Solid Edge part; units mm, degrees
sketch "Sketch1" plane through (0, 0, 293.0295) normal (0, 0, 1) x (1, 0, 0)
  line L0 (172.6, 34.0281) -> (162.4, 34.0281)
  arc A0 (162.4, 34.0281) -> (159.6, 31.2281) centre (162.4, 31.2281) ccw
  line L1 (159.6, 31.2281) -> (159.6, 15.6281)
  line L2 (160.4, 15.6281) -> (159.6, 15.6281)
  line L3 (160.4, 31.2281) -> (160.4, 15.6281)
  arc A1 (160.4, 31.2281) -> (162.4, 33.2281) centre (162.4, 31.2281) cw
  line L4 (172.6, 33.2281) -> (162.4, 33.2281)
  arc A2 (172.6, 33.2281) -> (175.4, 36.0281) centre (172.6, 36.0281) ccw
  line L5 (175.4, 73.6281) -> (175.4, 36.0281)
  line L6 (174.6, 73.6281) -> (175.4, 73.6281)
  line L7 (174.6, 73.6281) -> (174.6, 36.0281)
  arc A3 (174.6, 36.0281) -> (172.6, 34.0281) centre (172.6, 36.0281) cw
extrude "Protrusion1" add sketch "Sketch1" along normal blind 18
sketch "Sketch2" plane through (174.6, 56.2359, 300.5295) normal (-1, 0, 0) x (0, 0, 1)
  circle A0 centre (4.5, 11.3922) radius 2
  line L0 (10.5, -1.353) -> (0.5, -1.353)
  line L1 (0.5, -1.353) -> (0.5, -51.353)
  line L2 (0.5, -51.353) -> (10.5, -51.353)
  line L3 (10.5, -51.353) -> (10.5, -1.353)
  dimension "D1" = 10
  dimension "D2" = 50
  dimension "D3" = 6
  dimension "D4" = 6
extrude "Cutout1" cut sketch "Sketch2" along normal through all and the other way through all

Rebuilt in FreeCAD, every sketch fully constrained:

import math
import FreeCAD as App
import Part
import Sketcher
Q = App.Units.Quantity


def add_polygon(sketch, points):
    """Adds a closed chain of lines whose ends are joined by coincident constraints."""
    first, n = sketch.GeometryCount, len(points)
    for a, b in zip(points, points[1:] + points[:1]):
        sketch.addGeometry(Part.LineSegment(App.Vector(*a, 0), App.Vector(*b, 0)), False)
    for i in range(n):
        sketch.addConstraint(Sketcher.Constraint("Coincident", first + i, 2, first + (i + 1) % n, 1))

doc = App.newDocument("Part")
params = doc.addObject("Spreadsheet::Sheet", "Params")
for row, (alias, value) in enumerate([
    ("sketch1_radius", "2 mm"),
    ("sketch1_radius2", "2.8 mm"),
    ("sketch1_width", "10.2 mm"),
    ("sketch1_height", "15.6 mm"),
    ("sketch1_height2", "37.6 mm"),
    ("pad1_length", "18 mm"),
    ("sketch2_diameter", "4 mm"),
    ("sketch2_width", "50 mm"),
    ("sketch2_height", "10 mm"),
], start=1):
    params.set(f"A{row}", alias)
    params.set(f"B{row}", "=" + value)
    params.setAlias(f"B{row}", alias)

body = doc.addObject("PartDesign::Body", "Body")

# Sketch on XY plane
sketch1 = doc.addObject("Sketcher::SketchObject", "Sketch")
body.addObject(sketch1)
sketch1.AttachmentSupport = (doc.XY_Plane, [""])
sketch1.MapMode = "FlatFace"
sketch1.AttachmentOffset = App.Placement(App.Vector(0, 0, 293.0295), App.Rotation())
sketch1.addGeometry([
    Part.ArcOfCircle(Part.Circle(App.Vector(172.6, 36, 0), App.Vector(0, 0, 1), 2), math.radians(-90), math.radians(0)),  # 0
    Part.LineSegment(App.Vector(172.6, 34, 0), App.Vector(162.4, 34, 0)),  # 1
    Part.ArcOfCircle(Part.Circle(App.Vector(162.4, 31.2, 0), App.Vector(0, 0, 1), 2.8), math.radians(90), math.radians(180)),  # 2
    Part.LineSegment(App.Vector(159.6, 31.2, 0), App.Vector(159.6, 15.6, 0)),  # 3
    Part.LineSegment(App.Vector(159.6, 15.6, 0), App.Vector(160.4, 15.6, 0)),  # 4
    Part.LineSegment(App.Vector(160.4, 15.6, 0), App.Vector(160.4, 31.2, 0)),  # 5
    Part.ArcOfCircle(Part.Circle(App.Vector(162.4, 31.2, 0), App.Vector(0, 0, 1), 2), math.radians(90), math.radians(180)),  # 6
    Part.LineSegment(App.Vector(162.4, 33.2, 0), App.Vector(172.6, 33.2, 0)),  # 7
    Part.ArcOfCircle(Part.Circle(App.Vector(172.6, 36, 0), App.Vector(0, 0, 1), 2.8), math.radians(-90), math.radians(0)),  # 8
    Part.LineSegment(App.Vector(175.4, 36, 0), App.Vector(175.4, 73.6, 0)),  # 9
    Part.LineSegment(App.Vector(175.4, 73.6, 0), App.Vector(174.6, 73.6, 0)),  # 10
    Part.LineSegment(App.Vector(174.6, 73.6, 0), App.Vector(174.6, 36, 0)),  # 11
], False)
sketch1.addConstraint([
    Sketcher.Constraint("Tangent", 0, 1, 1, 1),
    Sketcher.Constraint("Tangent", 1, 2, 2, 1),
    Sketcher.Constraint("Tangent", 2, 2, 3, 1),
    Sketcher.Constraint("Coincident", 3, 2, 4, 1),
    Sketcher.Constraint("Coincident", 4, 2, 5, 1),
    Sketcher.Constraint("Tangent", 5, 2, 6, 2),
    Sketcher.Constraint("Tangent", 6, 1, 7, 1),
    Sketcher.Constraint("Tangent", 7, 2, 8, 1),
    Sketcher.Constraint("Tangent", 8, 2, 9, 1),
    Sketcher.Constraint("Coincident", 9, 2, 10, 1),
    Sketcher.Constraint("Coincident", 10, 2, 11, 1),
    Sketcher.Constraint("Tangent", 11, 2, 0, 2),
    Sketcher.Constraint("Horizontal", 1),
    Sketcher.Constraint("Vertical", 3),
    Sketcher.Constraint("Horizontal", 4),
    Sketcher.Constraint("Vertical", 5),
    Sketcher.Constraint("Horizontal", 7),
    Sketcher.Constraint("Vertical", 9),
    Sketcher.Constraint("Horizontal", 10),
    Sketcher.Constraint("Vertical", 11),
    Sketcher.Constraint("Coincident", 6, 3, 2, 3),
    Sketcher.Constraint("Coincident", 8, 3, 0, 3),
    Sketcher.Constraint("Equal", 0, 6),
    Sketcher.Constraint("Radius", 0, Q("2 mm")),
    Sketcher.Constraint("Radius", 2, Q("2.8 mm")),
    Sketcher.Constraint("DistanceX", 1, 2, 1, 1, Q("10.2 mm")),
    Sketcher.Constraint("DistanceY", 3, 2, 3, 1, Q("15.6 mm")),
    Sketcher.Constraint("DistanceY", 9, 1, 9, 2, Q("37.6 mm")),
    Sketcher.Constraint("DistanceX", -1, 1, 0, 3, Q("172.6 mm")),
    Sketcher.Constraint("DistanceY", -1, 1, 0, 3, Q("36.028 mm")),
])
sketch1.setExpression("Constraints[23]", "Params.sketch1_radius")
sketch1.setExpression("Constraints[24]", "Params.sketch1_radius2")
sketch1.setExpression("Constraints[25]", "Params.sketch1_width")
sketch1.setExpression("Constraints[26]", "Params.sketch1_height")
sketch1.setExpression("Constraints[27]", "Params.sketch1_height2")
pad1 = doc.addObject("PartDesign::Pad", "Pad")
body.addObject(pad1)
pad1.Profile = sketch1
pad1.setExpression("Length", "Params.pad1_length")

# Sketch on YZ plane
sketch2 = doc.addObject("Sketcher::SketchObject", "Sketch001")
body.addObject(sketch2)
sketch2.AttachmentSupport = (doc.YZ_Plane, [""])
sketch2.MapMode = "FlatFace"
sketch2.AttachmentOffset = App.Placement(App.Vector(0, 0, 174.6), App.Rotation())
sketch2.addGeometry(Part.Circle(App.Vector(67.6, 305, 0), App.Vector(0, 0, 1), 2), False)  # 0
add_polygon(sketch2, [(4.9, 311), (54.9, 311), (54.9, 301), (4.9, 301)])  # lines 1-4
sketch2.addConstraint([
    Sketcher.Constraint("Horizontal", 1),
    Sketcher.Constraint("Vertical", 2),
    Sketcher.Constraint("Horizontal", 3),
    Sketcher.Constraint("Vertical", 4),
    Sketcher.Constraint("Diameter", 0, Q("4 mm")),
    Sketcher.Constraint("DistanceX", 1, 1, 1, 2, Q("50 mm")),
    Sketcher.Constraint("DistanceY", 2, 2, 2, 1, Q("10 mm")),
    Sketcher.Constraint("DistanceY", 0, 3, 1, 2, Q("6 mm")),
    Sketcher.Constraint("DistanceX", -1, 1, 0, 3, Q("67.628 mm")),
    Sketcher.Constraint("DistanceX", -1, 1, 1, 2, Q("54.883 mm")),
    Sketcher.Constraint("DistanceY", -1, 1, 0, 3, Q("305.0295 mm")),
])
sketch2.setExpression("Constraints[8]", "Params.sketch2_diameter")
sketch2.setExpression("Constraints[9]", "Params.sketch2_width")
sketch2.setExpression("Constraints[10]", "Params.sketch2_height")
pocket1 = doc.addObject("PartDesign::Pocket", "Pocket")
body.addObject(pocket1)
pocket1.Profile = sketch2
pocket1.Type = "ThroughAll"
pocket1.Midplane = True

doc.recompute()
